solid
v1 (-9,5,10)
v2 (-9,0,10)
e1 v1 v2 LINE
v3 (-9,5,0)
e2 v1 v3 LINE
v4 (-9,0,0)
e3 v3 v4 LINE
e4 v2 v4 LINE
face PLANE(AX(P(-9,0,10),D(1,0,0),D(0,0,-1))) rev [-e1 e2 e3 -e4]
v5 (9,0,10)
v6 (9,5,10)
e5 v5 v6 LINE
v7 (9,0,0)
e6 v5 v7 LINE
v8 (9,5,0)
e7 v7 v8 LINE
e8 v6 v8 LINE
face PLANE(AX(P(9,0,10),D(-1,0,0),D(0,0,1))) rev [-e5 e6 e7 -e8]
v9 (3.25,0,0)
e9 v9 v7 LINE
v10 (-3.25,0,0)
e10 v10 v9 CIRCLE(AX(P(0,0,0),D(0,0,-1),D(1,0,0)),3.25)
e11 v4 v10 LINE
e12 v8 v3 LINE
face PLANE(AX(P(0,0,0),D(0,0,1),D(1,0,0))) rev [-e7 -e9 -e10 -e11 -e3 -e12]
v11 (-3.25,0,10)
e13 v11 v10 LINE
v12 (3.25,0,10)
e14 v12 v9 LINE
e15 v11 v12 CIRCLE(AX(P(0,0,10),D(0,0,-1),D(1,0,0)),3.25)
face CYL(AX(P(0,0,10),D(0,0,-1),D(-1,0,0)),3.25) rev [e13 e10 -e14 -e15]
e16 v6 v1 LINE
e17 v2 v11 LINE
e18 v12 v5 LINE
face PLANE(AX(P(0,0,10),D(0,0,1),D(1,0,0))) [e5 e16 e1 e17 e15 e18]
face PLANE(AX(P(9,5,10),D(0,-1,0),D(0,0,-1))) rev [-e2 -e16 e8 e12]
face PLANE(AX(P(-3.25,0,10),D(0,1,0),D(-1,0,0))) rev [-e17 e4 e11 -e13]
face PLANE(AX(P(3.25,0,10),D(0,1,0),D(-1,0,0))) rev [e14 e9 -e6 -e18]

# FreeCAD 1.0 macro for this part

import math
import FreeCAD as App
import Part
import Sketcher

V = App.Vector
Q = App.Units.Quantity

doc = App.newDocument("Part")
body = doc.addObject("PartDesign::Body", "Body")

sketch1 = body.newObject("Sketcher::SketchObject", "Sketch")
sketch1.AttachmentSupport = (doc.getObject("XY_Plane"), [""])
sketch1.MapMode = "FlatFace"
sketch1.addGeometry([
    Part.LineSegment(V(3.2, 0, 0), V(9, 0, 0)),
    Part.LineSegment(V(9, 0, 0), V(9, 5, 0)),
    Part.LineSegment(V(9, 5, 0), V(-9, 5, 0)),
    Part.LineSegment(V(-9, 5, 0), V(-9, 0, 0)),
    Part.LineSegment(V(-9, 0, 0), V(-3.2, 0, 0)),
    Part.ArcOfCircle(Part.Circle(V(0, 0, 0), V(0, 0, 1), 3.2), math.radians(0), math.radians(180)),
], False)
sketch1.addConstraint([
    Sketcher.Constraint("Coincident", 0, 2, 1, 1),
    Sketcher.Constraint("Coincident", 1, 2, 2, 1),
    Sketcher.Constraint("Coincident", 2, 2, 3, 1),
    Sketcher.Constraint("Coincident", 3, 2, 4, 1),
    Sketcher.Constraint("Coincident", 4, 2, 5, 2),
    Sketcher.Constraint("Coincident", 5, 1, 0, 1),
    Sketcher.Constraint("Horizontal", 0),
    Sketcher.Constraint("Vertical", 1),
    Sketcher.Constraint("Horizontal", 2),
    Sketcher.Constraint("Vertical", 3),
    Sketcher.Constraint("Horizontal", 4),
    Sketcher.Constraint("Coincident", 5, 3, -1, 1),
    Sketcher.Constraint("Symmetric", 0, 2, 3, 2, -1, 1),
    Sketcher.Constraint("PointOnObject", 0, 2, -1),
    Sketcher.Constraint("DistanceX", 2, 2, 2, 1, Q("18 mm")),
    Sketcher.Constraint("DistanceY", 1, 1, 1, 2, Q("5 mm")),
    Sketcher.Constraint("Radius", 5, Q("3.25 mm")),
])
pad1 = body.newObject("PartDesign::Pad", "Pad")
pad1.Profile = sketch1
pad1.Length = 10

doc.recompute()
